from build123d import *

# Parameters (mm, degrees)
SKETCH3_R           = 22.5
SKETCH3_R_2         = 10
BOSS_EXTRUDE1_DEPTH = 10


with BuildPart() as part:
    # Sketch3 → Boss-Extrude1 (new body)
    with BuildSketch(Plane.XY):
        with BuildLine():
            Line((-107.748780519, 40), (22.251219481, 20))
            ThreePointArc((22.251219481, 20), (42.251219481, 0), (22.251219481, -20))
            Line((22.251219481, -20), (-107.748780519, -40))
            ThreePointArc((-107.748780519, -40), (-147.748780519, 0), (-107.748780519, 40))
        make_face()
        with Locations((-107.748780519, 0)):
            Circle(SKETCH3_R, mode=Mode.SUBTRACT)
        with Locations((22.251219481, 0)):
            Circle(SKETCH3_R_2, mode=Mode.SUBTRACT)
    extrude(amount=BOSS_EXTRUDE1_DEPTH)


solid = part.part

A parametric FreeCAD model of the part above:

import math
import FreeCAD as App
import Part
import Sketcher

V = App.Vector

doc = App.newDocument("Part")
params = doc.addObject("Spreadsheet::Sheet", "Params")
for row, (alias, value) in enumerate([
    ("sketch1_diameter", "20 mm"),
    ("sketch1_diameter2", "45 mm"),
    ("sketch1_radius", "40 mm"),
    ("sketch1_radius2", "20 mm"),
    ("pad1_length", "10 mm"),
], start=1):
    params.set(f"A{row}", alias)
    params.set(f"B{row}", "=" + value)
    params.setAlias(f"B{row}", alias)

body = doc.addObject("PartDesign::Body", "Body")

# Sketch on XY plane
sketch1 = body.newObject("Sketcher::SketchObject", "Sketch")
sketch1.AttachmentSupport = (doc.getObject("XY_Plane"), [""])
sketch1.MapMode = "FlatFace"
sketch1.addGeometry(Part.LineSegment(V(22, 20, 0), V(-108, 40, 0)), False)
sketch1.addGeometry(Part.ArcOfCircle(Part.Circle(V(-108, 0, 0), V(0, 0, 1), 40), math.radians(90), math.radians(270)), False)
sketch1.addGeometry(Part.LineSegment(V(-108, -40, 0), V(22, -20, 0)), False)
sketch1.addGeometry(Part.ArcOfCircle(Part.Circle(V(22, 0, 0), V(0, 0, 1), 20), math.radians(-90), math.radians(90)), False)
sketch1.addGeometry(Part.Circle(V(22, 0, 0), V(0, 0, 1), 10), False)
sketch1.addGeometry(Part.Circle(V(-108, 0, 0), V(0, 0, 1), 22), False)
sketch1.addConstraint(Sketcher.Constraint("Coincident", 0, 2, 1, 1))
sketch1.addConstraint(Sketcher.Constraint("Coincident", 1, 2, 2, 1))
sketch1.addConstraint(Sketcher.Constraint("Coincident", 2, 2, 3, 1))
sketch1.addConstraint(Sketcher.Constraint("Coincident", 3, 2, 0, 1))
sketch1.addConstraint(Sketcher.Constraint("Coincident", 4, 3, 3, 3))
sketch1.addConstraint(Sketcher.Constraint("Coincident", 5, 3, 1, 3))
sketch1.addConstraint(Sketcher.Constraint("Symmetric", 0, 2, 1, 2, -1))
sketch1.addConstraint(Sketcher.Constraint("Symmetric", 2, 2, 3, 2, -1))
sketch1.addConstraint(Sketcher.Constraint("Vertical", 5, 3, 0, 2))
sketch1.addConstraint(Sketcher.Constraint("Vertical", 4, 3, 2, 2))
sketch1.addConstraint(Sketcher.Constraint("Diameter", 4, 20.0))
sketch1.addConstraint(Sketcher.Constraint("Diameter", 5, 45.0))
sketch1.addConstraint(Sketcher.Constraint("Radius", 1, 40.0))
sketch1.addConstraint(Sketcher.Constraint("Radius", 3, 20.0))
sketch1.addConstraint(Sketcher.Constraint("DistanceX", 1, 3, 3, 3, 130.0))
sketch1.addConstraint(Sketcher.Constraint("DistanceX", 1, 3, -1, 1, 107.748781))
sketch1.setExpression("Constraints[10]", "Params.sketch1_diameter")
sketch1.setExpression("Constraints[11]", "Params.sketch1_diameter2")
sketch1.setExpression("Constraints[12]", "Params.sketch1_radius")
sketch1.setExpression("Constraints[13]", "Params.sketch1_radius2")
pad1 = body.newObject("PartDesign::Pad", "Pad")
pad1.Profile = sketch1
pad1.setExpression("Length", "Params.pad1_length")

doc.recompute()
